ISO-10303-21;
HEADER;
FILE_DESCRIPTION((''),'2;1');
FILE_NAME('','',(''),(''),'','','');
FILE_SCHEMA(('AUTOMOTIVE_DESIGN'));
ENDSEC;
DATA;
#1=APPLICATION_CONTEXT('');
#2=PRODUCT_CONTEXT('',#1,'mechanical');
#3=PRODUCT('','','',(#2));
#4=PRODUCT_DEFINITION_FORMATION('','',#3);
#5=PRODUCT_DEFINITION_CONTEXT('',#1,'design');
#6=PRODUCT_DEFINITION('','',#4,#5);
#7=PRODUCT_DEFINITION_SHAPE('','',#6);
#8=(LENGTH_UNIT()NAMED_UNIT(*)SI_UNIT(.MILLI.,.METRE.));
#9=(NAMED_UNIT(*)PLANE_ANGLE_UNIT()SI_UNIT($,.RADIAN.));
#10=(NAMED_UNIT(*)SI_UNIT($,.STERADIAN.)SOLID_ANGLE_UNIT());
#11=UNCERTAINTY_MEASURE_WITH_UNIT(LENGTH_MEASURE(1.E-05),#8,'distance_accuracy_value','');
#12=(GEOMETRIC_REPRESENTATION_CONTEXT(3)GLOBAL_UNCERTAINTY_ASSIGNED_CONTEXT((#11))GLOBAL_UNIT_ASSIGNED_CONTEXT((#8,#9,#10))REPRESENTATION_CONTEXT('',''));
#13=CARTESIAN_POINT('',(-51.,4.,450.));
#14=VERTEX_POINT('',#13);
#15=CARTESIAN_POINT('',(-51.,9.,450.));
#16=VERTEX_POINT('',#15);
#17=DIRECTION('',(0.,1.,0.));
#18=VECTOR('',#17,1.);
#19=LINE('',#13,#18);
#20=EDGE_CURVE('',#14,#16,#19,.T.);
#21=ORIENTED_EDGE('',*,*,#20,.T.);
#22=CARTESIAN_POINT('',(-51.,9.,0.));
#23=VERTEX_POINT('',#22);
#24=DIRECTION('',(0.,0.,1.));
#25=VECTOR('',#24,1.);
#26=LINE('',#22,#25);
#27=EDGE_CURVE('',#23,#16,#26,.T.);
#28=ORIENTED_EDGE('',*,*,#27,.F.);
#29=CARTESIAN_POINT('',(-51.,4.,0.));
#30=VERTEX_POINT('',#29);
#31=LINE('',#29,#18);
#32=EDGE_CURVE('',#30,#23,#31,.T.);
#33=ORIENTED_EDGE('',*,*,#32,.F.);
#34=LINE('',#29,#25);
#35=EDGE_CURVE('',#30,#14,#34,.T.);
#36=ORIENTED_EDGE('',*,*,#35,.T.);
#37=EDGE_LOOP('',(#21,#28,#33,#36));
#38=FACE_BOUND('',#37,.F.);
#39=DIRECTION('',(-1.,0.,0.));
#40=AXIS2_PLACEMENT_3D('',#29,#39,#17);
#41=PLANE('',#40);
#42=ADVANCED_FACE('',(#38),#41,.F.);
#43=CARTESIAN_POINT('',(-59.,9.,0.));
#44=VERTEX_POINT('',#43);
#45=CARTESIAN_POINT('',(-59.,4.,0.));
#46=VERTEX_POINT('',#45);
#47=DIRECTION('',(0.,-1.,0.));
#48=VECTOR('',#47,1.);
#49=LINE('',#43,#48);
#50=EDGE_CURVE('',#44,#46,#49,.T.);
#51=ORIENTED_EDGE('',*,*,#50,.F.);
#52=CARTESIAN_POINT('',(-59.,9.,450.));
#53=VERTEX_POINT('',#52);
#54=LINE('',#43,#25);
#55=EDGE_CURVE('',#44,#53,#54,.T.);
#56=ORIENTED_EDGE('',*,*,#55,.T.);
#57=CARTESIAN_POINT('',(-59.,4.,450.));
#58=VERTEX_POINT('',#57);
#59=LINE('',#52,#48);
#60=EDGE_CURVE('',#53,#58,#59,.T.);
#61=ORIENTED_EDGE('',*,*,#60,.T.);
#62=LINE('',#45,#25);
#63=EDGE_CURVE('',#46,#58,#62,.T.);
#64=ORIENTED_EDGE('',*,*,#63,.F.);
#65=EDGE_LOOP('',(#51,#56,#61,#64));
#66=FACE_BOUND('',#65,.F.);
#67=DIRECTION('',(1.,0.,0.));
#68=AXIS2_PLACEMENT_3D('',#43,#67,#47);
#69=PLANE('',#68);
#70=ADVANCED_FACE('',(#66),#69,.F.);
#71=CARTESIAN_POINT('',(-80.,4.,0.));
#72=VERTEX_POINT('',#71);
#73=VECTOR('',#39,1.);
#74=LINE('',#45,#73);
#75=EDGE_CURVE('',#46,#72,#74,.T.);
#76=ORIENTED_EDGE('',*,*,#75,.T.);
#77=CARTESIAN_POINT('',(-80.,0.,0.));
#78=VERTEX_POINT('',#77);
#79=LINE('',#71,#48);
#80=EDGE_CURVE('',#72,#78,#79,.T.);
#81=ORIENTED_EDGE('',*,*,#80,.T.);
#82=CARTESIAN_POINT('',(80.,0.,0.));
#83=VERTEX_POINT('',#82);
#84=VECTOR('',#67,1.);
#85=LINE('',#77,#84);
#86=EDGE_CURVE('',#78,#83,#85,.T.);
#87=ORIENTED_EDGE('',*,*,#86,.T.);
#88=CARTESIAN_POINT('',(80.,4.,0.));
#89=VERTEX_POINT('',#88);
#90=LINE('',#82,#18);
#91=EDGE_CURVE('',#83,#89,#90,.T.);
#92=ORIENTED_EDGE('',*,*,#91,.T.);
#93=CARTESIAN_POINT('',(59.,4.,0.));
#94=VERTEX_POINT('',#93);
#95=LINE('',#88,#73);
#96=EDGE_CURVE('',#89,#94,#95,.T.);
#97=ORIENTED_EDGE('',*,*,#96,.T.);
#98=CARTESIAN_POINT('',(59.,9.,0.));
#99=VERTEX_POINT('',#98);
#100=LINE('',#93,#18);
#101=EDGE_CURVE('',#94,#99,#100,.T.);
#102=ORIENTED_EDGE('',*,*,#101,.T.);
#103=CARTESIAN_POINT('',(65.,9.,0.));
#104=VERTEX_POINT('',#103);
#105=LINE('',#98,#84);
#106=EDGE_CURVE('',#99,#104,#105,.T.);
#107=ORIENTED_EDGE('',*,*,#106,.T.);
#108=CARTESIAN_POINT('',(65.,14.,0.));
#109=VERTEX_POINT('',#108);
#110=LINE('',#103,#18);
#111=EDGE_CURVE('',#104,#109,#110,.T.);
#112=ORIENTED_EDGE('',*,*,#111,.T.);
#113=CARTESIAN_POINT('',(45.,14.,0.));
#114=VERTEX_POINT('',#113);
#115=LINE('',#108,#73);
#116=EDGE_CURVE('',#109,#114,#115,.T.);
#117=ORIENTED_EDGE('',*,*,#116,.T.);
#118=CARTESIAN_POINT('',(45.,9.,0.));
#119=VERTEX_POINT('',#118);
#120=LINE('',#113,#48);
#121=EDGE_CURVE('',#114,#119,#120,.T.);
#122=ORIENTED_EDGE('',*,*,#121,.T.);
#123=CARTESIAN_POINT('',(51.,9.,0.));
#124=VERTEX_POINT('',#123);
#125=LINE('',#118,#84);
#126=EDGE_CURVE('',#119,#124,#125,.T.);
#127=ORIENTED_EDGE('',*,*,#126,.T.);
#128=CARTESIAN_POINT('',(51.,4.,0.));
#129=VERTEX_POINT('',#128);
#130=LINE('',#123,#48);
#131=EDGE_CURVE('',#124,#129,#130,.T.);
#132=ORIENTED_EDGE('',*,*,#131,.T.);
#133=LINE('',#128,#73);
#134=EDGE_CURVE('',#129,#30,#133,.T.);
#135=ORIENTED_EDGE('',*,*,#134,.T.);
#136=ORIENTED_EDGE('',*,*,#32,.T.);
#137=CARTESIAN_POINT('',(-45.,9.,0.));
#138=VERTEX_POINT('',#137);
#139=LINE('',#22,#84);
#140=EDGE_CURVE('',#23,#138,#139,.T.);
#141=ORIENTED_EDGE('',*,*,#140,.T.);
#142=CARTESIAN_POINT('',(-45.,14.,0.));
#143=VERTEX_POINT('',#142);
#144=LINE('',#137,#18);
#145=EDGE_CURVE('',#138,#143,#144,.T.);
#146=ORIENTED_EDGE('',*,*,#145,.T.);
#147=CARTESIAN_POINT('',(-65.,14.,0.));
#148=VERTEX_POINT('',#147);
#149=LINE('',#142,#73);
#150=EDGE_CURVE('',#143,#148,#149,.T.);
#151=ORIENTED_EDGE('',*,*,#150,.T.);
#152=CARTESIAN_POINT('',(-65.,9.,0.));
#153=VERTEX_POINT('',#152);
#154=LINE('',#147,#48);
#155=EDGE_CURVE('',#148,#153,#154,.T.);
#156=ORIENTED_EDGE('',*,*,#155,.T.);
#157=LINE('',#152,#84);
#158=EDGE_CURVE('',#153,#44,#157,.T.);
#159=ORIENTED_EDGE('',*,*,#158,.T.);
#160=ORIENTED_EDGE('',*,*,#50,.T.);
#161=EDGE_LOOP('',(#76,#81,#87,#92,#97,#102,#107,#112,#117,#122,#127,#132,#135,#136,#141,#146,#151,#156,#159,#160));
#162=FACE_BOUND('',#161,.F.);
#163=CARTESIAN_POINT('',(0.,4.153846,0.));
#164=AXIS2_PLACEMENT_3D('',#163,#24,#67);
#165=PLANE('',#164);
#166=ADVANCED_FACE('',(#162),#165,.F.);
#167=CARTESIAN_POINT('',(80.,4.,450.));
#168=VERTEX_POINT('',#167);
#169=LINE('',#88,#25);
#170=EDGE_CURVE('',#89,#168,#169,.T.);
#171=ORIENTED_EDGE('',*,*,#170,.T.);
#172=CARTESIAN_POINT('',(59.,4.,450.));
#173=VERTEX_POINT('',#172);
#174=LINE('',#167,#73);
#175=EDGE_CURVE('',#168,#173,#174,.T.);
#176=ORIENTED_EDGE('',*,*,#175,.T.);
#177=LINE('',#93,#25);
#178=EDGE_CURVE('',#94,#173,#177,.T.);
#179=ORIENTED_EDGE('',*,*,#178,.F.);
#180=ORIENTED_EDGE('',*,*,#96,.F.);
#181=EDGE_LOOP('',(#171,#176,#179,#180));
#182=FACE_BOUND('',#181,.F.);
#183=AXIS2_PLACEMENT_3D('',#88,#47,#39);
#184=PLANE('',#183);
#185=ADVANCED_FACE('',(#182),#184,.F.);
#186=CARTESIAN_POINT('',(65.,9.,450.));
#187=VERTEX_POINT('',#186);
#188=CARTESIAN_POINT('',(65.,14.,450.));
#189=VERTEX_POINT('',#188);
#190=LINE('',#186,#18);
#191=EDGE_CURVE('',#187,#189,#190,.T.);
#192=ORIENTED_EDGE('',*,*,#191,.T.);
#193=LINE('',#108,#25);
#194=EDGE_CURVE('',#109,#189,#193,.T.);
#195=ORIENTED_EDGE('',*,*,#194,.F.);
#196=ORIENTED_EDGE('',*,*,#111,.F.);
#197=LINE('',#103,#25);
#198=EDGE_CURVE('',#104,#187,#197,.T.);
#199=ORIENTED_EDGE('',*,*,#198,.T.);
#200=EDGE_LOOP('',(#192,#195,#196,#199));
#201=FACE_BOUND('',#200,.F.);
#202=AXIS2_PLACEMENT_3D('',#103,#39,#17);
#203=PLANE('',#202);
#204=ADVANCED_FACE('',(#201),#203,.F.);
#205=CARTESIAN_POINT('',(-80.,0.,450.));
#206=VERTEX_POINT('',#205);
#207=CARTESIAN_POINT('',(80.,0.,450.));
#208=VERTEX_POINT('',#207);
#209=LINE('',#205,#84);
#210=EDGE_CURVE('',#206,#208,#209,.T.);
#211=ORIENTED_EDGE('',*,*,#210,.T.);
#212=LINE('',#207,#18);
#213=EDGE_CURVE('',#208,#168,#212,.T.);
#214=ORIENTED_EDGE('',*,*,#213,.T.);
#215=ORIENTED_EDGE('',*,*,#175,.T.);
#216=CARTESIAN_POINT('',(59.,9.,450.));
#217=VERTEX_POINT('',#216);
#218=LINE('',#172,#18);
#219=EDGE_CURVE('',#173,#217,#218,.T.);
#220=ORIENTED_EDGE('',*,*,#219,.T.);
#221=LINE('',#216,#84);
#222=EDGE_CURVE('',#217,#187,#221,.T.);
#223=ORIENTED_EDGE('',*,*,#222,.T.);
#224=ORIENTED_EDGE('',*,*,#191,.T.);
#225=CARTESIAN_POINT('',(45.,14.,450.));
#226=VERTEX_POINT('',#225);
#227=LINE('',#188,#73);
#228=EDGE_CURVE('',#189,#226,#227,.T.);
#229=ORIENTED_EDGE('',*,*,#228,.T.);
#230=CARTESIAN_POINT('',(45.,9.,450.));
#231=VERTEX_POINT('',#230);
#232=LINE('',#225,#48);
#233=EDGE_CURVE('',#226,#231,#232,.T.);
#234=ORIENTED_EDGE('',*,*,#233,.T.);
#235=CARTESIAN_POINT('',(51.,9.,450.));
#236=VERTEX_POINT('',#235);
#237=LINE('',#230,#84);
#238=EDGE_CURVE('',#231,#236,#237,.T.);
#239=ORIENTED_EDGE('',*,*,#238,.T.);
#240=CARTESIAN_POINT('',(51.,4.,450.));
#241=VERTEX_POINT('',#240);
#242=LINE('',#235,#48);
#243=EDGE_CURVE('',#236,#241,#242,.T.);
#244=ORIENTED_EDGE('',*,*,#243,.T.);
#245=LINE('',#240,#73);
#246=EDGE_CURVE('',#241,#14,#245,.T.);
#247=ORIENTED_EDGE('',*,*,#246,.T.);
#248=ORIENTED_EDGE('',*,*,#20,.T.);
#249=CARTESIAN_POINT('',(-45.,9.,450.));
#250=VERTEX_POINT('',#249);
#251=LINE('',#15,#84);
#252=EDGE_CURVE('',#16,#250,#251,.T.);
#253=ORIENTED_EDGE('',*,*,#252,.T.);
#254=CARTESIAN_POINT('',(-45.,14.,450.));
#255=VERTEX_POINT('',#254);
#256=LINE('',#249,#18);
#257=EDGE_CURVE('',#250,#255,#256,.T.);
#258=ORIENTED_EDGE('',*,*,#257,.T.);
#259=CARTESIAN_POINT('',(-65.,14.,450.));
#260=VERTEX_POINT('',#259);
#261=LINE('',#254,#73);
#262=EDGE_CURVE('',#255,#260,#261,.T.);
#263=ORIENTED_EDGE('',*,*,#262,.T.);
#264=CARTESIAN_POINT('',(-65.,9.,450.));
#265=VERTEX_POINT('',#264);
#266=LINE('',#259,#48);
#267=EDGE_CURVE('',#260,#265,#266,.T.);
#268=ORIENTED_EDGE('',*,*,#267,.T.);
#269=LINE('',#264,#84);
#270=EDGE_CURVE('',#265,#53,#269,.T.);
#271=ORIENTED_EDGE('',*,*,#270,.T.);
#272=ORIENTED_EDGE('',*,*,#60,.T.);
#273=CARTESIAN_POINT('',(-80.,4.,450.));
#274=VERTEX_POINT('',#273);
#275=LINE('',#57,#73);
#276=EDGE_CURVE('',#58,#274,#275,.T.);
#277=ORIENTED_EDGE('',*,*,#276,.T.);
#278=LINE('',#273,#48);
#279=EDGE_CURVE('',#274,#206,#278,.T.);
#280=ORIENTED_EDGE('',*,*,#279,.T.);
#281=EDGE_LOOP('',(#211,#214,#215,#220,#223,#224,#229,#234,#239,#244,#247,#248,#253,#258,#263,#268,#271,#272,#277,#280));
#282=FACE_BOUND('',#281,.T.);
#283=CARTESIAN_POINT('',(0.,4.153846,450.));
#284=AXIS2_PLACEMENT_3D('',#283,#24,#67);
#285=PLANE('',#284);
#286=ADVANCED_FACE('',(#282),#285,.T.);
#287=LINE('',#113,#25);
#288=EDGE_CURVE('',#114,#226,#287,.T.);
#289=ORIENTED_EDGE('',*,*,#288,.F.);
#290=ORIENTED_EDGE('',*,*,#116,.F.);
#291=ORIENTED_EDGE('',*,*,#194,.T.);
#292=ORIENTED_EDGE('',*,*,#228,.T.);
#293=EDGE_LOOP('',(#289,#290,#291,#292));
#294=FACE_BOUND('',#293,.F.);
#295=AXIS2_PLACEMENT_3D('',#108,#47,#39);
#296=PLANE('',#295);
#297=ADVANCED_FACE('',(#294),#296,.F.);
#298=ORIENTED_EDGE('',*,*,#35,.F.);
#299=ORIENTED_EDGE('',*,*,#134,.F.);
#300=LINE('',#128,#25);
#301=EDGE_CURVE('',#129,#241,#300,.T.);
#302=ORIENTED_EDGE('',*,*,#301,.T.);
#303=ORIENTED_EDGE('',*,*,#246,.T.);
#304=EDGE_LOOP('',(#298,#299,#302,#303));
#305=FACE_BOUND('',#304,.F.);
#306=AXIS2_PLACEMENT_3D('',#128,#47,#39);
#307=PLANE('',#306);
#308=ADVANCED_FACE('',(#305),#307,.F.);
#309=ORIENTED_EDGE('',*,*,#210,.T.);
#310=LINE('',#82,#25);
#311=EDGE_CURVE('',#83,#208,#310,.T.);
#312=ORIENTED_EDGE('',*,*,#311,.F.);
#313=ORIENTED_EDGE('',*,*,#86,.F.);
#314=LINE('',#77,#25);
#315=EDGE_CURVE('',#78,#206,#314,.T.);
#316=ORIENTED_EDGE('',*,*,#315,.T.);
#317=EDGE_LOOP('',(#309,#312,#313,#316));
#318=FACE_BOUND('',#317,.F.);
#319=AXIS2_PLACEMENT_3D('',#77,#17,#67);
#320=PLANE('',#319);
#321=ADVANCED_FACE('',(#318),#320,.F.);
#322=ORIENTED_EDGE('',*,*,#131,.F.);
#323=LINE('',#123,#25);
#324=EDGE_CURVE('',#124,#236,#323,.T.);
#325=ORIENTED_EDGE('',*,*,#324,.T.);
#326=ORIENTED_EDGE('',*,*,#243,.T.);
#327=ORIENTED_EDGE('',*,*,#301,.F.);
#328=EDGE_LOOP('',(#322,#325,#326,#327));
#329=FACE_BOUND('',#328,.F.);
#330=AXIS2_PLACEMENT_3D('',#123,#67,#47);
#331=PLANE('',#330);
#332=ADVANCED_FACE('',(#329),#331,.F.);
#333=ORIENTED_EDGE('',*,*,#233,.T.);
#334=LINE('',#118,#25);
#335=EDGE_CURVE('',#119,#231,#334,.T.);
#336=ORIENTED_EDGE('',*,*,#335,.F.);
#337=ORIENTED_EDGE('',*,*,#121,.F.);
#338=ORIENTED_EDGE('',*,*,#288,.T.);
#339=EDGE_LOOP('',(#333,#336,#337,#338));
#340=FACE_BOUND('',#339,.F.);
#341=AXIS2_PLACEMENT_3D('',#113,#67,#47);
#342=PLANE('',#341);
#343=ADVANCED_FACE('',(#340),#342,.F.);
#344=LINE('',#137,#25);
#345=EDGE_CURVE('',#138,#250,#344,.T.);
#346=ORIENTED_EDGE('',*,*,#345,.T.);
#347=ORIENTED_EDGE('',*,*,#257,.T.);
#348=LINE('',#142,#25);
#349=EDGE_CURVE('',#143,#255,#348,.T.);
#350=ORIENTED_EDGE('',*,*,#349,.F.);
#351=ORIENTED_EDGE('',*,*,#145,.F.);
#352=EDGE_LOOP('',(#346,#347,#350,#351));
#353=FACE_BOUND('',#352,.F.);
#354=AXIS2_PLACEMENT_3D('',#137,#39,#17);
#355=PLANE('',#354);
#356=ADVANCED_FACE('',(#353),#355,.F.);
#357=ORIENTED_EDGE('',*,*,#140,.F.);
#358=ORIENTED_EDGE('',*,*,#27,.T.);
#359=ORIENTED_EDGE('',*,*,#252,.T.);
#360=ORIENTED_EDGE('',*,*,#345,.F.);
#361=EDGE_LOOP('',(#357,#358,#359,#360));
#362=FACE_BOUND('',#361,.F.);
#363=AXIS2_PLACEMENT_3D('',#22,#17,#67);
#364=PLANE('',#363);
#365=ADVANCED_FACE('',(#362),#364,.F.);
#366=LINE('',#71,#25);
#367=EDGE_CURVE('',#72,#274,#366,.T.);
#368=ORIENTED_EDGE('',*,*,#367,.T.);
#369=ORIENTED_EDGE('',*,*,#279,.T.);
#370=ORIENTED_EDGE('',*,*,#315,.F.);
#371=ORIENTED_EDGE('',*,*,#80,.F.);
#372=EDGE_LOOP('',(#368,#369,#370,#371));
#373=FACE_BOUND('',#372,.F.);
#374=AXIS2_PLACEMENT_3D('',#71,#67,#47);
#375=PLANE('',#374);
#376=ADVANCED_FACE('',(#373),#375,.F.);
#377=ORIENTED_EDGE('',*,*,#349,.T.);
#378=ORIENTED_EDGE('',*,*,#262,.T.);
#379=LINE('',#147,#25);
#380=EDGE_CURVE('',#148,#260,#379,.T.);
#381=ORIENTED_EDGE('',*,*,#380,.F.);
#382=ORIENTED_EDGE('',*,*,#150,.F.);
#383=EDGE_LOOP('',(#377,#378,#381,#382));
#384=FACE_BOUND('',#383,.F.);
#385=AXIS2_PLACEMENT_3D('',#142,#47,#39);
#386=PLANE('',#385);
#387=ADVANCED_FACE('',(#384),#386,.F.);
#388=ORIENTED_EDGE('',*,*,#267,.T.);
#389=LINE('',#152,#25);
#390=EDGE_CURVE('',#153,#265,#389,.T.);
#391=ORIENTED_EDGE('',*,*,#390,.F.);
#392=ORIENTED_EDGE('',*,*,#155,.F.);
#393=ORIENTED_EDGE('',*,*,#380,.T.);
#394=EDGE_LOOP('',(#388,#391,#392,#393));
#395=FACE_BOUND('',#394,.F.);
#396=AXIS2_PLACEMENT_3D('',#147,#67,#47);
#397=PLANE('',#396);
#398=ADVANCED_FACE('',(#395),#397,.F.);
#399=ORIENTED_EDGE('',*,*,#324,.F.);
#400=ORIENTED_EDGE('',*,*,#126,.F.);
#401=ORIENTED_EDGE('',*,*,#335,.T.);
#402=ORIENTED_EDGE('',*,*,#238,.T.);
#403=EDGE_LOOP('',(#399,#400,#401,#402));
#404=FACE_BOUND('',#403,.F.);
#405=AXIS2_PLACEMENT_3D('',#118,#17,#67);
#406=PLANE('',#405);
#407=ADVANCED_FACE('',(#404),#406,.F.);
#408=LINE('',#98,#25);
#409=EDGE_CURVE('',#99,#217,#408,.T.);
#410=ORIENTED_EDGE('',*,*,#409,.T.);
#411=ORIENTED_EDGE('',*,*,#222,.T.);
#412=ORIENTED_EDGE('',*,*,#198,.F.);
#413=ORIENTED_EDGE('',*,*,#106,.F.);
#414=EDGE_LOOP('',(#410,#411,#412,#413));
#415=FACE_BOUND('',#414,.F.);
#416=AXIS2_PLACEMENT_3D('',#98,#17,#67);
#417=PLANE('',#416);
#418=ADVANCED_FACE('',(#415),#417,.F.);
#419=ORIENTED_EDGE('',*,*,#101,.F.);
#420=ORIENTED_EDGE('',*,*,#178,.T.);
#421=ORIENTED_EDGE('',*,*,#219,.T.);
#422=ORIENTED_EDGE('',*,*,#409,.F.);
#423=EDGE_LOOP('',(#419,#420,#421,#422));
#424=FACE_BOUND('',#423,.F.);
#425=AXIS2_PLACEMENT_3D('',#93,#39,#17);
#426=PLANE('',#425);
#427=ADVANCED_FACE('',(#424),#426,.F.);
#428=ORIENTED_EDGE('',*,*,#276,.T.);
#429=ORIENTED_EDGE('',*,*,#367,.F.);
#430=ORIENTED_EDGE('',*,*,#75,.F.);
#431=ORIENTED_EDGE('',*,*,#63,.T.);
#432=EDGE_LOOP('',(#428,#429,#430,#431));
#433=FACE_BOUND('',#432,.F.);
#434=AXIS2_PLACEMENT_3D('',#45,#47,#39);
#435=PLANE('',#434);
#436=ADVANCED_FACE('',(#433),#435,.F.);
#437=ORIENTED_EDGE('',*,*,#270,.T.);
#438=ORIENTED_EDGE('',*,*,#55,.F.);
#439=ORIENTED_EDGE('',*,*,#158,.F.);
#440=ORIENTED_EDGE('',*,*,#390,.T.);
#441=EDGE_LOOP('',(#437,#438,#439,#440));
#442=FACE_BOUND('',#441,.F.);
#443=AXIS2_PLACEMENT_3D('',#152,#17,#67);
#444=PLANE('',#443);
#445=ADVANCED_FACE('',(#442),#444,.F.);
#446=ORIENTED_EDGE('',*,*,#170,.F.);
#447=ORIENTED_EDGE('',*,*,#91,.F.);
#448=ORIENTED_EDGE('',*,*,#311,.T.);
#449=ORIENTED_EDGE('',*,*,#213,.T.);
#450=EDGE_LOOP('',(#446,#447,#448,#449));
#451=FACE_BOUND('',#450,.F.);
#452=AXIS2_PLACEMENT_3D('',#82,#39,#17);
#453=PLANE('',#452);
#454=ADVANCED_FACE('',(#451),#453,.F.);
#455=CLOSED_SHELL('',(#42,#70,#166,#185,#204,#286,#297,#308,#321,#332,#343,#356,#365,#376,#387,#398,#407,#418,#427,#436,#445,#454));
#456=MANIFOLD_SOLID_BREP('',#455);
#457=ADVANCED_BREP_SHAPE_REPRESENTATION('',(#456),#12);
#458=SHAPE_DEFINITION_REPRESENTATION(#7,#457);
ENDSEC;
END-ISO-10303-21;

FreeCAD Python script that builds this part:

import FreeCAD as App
import Part
import Sketcher
from FreeCAD import Vector
Q = App.Units.Quantity


def add_polygon(sketch, points):
    """Adds a closed chain of lines whose ends are joined by coincident constraints."""
    first, n = sketch.GeometryCount, len(points)
    for a, b in zip(points, points[1:] + points[:1]):
        sketch.addGeometry(Part.LineSegment(App.Vector(*a, 0), App.Vector(*b, 0)), False)
    for i in range(n):
        sketch.addConstraint(Sketcher.Constraint("Coincident", first + i, 2, first + (i + 1) % n, 1))

doc = App.newDocument("Part")
body = doc.addObject("PartDesign::Body", "Body")

sketch1 = body.newObject("Sketcher::SketchObject", "Sketch")
sketch1.AttachmentSupport = (doc.getObject("XY_Plane"), [""])
sketch1.MapMode = "FlatFace"
add_polygon(sketch1, [(80, 0), (80, 4), (59, 4), (59, 9), (65, 9), (65, 14), (45, 14), (45, 9), (51, 9), (51, 4), (-51, 4), (-51, 9), (-45, 9), (-45, 14), (-65, 14), (-65, 9), (-59, 9), (-59, 4), (-80, 4), (-80, 0)])
sketch1.addConstraint([
    Sketcher.Constraint("Vertical", 0),
    Sketcher.Constraint("Horizontal", 1),
    Sketcher.Constraint("Vertical", 2),
    Sketcher.Constraint("Horizontal", 3),
    Sketcher.Constraint("Vertical", 4),
    Sketcher.Constraint("Horizontal", 5),
    Sketcher.Constraint("Vertical", 6),
    Sketcher.Constraint("Horizontal", 7),
    Sketcher.Constraint("Vertical", 8),
    Sketcher.Constraint("Horizontal", 9),
    Sketcher.Constraint("Vertical", 10),
    Sketcher.Constraint("Horizontal", 11),
    Sketcher.Constraint("Vertical", 12),
    Sketcher.Constraint("Horizontal", 13),
    Sketcher.Constraint("Vertical", 14),
    Sketcher.Constraint("Horizontal", 15),
    Sketcher.Constraint("Vertical", 16),
    Sketcher.Constraint("Horizontal", 17),
    Sketcher.Constraint("Vertical", 18),
    Sketcher.Constraint("Horizontal", 19),
    Sketcher.Constraint("Symmetric", 18, 2, 19, 2, -1, 1),
    Sketcher.Constraint("Symmetric", 7, 2, 10, 2, -2),
    Sketcher.Constraint("Symmetric", 5, 2, 12, 2, -2),
    Sketcher.Constraint("Symmetric", 3, 2, 14, 2, -2),
    Sketcher.Constraint("Symmetric", 1, 2, 16, 2, -2),
    Sketcher.Constraint("Horizontal", 3, 2, 6, 2),
    Sketcher.Constraint("Horizontal", 1, 2, 8, 2),
    Sketcher.Constraint("Equal", 3, 7),
    Sketcher.Constraint("Equal", 2, 4),
    Sketcher.Constraint("DistanceX", 1, 2, 1, 1, Q("21 mm")),
    Sketcher.Constraint("DistanceX", 3, 1, 3, 2, Q("6 mm")),
    Sketcher.Constraint("DistanceX", 5, 2, 5, 1, Q("20 mm")),
    Sketcher.Constraint("DistanceX", 9, 2, 9, 1, Q("102 mm")),
    Sketcher.Constraint("DistanceY", 0, 1, 0, 2, Q("4 mm")),
    Sketcher.Constraint("DistanceY", 2, 1, 2, 2, Q("5 mm")),
])
pad1 = body.newObject("PartDesign::Pad", "Pad")
pad1.Profile = sketch1
pad1.Length = 450

doc.recompute()
